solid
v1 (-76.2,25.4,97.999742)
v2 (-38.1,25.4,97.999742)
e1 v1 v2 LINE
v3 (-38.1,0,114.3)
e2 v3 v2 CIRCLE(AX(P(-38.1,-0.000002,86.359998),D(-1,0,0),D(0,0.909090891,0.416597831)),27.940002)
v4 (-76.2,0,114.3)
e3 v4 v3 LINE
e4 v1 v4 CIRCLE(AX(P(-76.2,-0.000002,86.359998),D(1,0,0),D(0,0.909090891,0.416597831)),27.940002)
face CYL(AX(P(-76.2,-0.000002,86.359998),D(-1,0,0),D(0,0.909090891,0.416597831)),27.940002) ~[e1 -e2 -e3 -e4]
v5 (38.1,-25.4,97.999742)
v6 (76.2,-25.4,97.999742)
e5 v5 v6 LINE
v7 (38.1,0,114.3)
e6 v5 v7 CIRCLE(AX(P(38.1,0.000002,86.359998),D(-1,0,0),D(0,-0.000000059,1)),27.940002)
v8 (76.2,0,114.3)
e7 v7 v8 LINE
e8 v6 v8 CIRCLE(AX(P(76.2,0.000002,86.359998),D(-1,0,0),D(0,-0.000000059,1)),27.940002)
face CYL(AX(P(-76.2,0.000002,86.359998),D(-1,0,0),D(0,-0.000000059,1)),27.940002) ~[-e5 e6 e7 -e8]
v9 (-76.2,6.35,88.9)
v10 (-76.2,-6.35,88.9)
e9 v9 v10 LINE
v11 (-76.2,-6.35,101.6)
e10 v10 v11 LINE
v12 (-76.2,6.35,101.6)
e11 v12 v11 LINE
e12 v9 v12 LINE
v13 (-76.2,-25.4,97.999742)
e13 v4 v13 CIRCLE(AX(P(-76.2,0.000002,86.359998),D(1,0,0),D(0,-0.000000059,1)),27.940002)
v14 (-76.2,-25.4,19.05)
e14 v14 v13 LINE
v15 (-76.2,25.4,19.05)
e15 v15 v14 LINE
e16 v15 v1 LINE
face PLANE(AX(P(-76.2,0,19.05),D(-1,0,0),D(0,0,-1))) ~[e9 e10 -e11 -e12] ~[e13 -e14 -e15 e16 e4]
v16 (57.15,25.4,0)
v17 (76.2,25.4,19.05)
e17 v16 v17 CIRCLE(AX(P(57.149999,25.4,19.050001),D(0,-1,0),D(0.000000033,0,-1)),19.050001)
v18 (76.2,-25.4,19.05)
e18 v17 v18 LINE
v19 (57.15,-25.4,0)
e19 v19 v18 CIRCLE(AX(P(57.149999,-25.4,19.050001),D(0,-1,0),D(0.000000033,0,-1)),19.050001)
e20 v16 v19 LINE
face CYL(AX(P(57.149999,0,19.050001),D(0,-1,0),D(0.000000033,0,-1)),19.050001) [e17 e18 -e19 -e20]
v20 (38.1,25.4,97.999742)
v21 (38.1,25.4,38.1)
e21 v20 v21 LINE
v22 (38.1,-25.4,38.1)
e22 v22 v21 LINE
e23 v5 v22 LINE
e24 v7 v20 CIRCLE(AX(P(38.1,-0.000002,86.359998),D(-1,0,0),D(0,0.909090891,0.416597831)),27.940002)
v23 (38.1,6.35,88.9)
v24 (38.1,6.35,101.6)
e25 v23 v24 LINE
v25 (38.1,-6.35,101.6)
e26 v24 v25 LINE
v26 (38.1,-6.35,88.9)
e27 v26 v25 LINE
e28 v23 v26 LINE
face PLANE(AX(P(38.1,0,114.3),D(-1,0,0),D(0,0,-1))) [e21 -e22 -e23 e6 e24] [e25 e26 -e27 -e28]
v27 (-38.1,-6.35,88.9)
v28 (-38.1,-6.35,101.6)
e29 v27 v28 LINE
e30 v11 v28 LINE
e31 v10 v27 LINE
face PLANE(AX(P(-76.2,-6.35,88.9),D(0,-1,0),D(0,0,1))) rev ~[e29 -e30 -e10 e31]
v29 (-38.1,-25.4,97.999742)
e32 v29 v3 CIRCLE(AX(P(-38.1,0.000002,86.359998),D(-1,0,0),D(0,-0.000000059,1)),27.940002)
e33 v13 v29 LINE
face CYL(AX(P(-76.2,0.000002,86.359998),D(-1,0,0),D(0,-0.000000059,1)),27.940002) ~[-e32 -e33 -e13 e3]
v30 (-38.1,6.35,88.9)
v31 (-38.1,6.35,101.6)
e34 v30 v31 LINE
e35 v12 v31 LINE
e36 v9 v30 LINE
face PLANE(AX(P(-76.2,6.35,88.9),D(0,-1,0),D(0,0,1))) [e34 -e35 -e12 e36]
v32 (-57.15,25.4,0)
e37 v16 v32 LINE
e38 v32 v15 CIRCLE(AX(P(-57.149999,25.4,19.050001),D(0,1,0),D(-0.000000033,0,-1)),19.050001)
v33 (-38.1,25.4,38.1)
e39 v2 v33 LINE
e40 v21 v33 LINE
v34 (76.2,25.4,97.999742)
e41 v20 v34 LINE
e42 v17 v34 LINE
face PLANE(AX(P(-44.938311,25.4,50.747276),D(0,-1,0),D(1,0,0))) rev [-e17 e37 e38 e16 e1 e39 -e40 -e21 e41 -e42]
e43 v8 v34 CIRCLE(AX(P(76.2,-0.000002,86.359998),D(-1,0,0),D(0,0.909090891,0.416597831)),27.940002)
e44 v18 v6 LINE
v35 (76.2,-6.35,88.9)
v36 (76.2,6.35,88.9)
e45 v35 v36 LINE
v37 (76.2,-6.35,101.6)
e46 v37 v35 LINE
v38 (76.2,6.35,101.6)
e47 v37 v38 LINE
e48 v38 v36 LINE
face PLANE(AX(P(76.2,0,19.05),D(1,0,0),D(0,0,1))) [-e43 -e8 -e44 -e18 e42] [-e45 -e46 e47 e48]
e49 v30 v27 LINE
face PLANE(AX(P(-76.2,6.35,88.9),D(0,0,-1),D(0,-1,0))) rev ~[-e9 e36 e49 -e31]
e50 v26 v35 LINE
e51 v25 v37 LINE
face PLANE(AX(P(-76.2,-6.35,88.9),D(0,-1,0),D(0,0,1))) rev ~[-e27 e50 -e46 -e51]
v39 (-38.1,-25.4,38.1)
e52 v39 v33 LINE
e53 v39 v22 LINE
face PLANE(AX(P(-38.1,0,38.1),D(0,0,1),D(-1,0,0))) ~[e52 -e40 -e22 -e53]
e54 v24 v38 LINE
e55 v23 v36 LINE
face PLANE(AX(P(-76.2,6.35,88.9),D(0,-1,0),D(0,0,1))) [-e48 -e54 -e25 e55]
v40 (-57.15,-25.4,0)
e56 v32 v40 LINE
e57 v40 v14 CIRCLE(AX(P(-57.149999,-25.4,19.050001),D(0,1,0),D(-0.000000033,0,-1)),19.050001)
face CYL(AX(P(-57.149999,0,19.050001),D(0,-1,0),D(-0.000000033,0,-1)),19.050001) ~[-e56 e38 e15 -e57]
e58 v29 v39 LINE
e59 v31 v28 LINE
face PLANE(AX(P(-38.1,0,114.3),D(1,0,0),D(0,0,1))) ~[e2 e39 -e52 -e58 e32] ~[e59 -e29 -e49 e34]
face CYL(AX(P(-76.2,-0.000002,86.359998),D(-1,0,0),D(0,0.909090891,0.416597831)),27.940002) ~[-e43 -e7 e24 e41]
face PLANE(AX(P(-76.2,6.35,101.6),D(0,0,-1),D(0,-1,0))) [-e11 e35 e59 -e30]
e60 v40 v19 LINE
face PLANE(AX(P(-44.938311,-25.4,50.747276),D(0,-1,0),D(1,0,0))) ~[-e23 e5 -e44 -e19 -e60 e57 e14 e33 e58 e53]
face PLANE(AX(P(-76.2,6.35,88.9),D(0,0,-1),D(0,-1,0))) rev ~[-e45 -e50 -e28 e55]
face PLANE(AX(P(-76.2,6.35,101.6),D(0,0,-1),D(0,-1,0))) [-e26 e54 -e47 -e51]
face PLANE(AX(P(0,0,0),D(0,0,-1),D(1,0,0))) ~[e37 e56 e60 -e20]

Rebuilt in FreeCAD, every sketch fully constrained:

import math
import FreeCAD as App
import Part
import Sketcher
Q = App.Units.Quantity

doc = App.newDocument("Part")
params = doc.addObject("Spreadsheet::Sheet", "Params")
for row, (alias, value) in enumerate([
    ("sketch1_height", "3 in"),
    ("sketch1_radius", "0.75 in"),
    ("sketch1_width", "1.5 in"),
    ("pad1_length", "2 in"),
    ("sketch2_radius", "1.1000001 in"),
    ("sketch2_width", "1 in"),
    ("sketch2_width2", "0.5 in"),
], start=1):
    params.set(f"A{row}", alias)
    params.set(f"B{row}", "=" + value)
    params.setAlias(f"B{row}", alias)

body = doc.addObject("PartDesign::Body", "Body")

# Sketch on XZ plane
sketch1 = body.newObject("Sketcher::SketchObject", "Sketch")
sketch1.AttachmentSupport = (doc.getObject("XZ_Plane"), [""])
sketch1.MapMode = "FlatFace"
sketch1.addGeometry(Part.LineSegment(App.Vector(0, 38, 0), App.Vector(0, 0, 0)), False)
sketch1.addGeometry(Part.LineSegment(App.Vector(0, 0, 0), App.Vector(57, 0, 0)), False)
sketch1.addGeometry(Part.ArcOfCircle(Part.Circle(App.Vector(57, 19, 0), App.Vector(0, 0, 1), 19), math.radians(-90), math.radians(0)), False)
sketch1.addGeometry(Part.LineSegment(App.Vector(76, 19, 0), App.Vector(76, 114, 0)), False)
sketch1.addGeometry(Part.LineSegment(App.Vector(76, 114, 0), App.Vector(38, 114, 0)), False)
sketch1.addGeometry(Part.LineSegment(App.Vector(38, 114, 0), App.Vector(38, 38, 0)), False)
sketch1.addGeometry(Part.LineSegment(App.Vector(38, 38, 0), App.Vector(0, 38, 0)), False)
sketch1.addConstraint(Sketcher.Constraint("Coincident", 0, 2, 1, 1))
sketch1.addConstraint(Sketcher.Constraint("Tangent", 1, 2, 2, 1))
sketch1.addConstraint(Sketcher.Constraint("Tangent", 2, 2, 3, 1))
sketch1.addConstraint(Sketcher.Constraint("Coincident", 3, 2, 4, 1))
sketch1.addConstraint(Sketcher.Constraint("Coincident", 4, 2, 5, 1))
sketch1.addConstraint(Sketcher.Constraint("Coincident", 5, 2, 6, 1))
sketch1.addConstraint(Sketcher.Constraint("Coincident", 6, 2, 0, 1))
sketch1.addConstraint(Sketcher.Constraint("Vertical", 0))
sketch1.addConstraint(Sketcher.Constraint("Horizontal", 1))
sketch1.addConstraint(Sketcher.Constraint("Vertical", 3))
sketch1.addConstraint(Sketcher.Constraint("Horizontal", 4))
sketch1.addConstraint(Sketcher.Constraint("Vertical", 5))
sketch1.addConstraint(Sketcher.Constraint("Horizontal", 6))
sketch1.addConstraint(Sketcher.Constraint("Coincident", 0, 2, -1, 1))
sketch1.addConstraint(Sketcher.Constraint("Equal", 4, 6))
sketch1.addConstraint(Sketcher.Constraint("Equal", 6, 0))
sketch1.addConstraint(Sketcher.Constraint("DistanceY", 5, 2, 5, 1, Q("3 in")))
sketch1.addConstraint(Sketcher.Constraint("Radius", 2, Q("0.75 in")))
sketch1.addConstraint(Sketcher.Constraint("DistanceX", 4, 2, 4, 1, Q("1.5 in")))
sketch1.setExpression("Constraints[16]", "Params.sketch1_height")
sketch1.setExpression("Constraints[17]", "Params.sketch1_radius")
sketch1.setExpression("Constraints[18]", "Params.sketch1_width")
pad1 = body.newObject("PartDesign::Pad", "Pad")
pad1.Profile = sketch1
pad1.setExpression("Length", "Params.pad1_length")
pad1.Midplane = True
body2 = doc.addObject("PartDesign::Body", "Body001")
doc.recompute()

body2.BaseFeature = body
doc.recompute()

mirroring = doc.addObject("Part::Mirroring", "Mirroring")
mirroring.Source = body
mirroring.Base = App.Vector(0, 0, 0)
mirroring.Normal = App.Vector(1, 0, 0)
body3 = doc.addObject("PartDesign::Body", "Body002")
body3.BaseFeature = mirroring
boolean = body2.newObject("PartDesign::Boolean", "Boolean")
boolean.Type = "Fuse"
boolean.addObjects([body3])
doc.recompute()

# Sketch on YZ plane
sketch2 = body2.newObject("Sketcher::SketchObject", "Sketch001")
sketch2.AttachmentSupport = (doc.getObject("YZ_Plane001"), [""])
sketch2.MapMode = "FlatFace"
sketch2.AttachmentOffset = App.Placement(App.Vector(0, 0, -3 * 25.4), App.Rotation())
sketch2.addGeometry(Part.ArcOfCircle(Part.Circle(App.Vector(0, 86, 0), App.Vector(0, 0, 1), 28), math.radians(25), math.radians(90)), False)
sketch2.addGeometry(Part.LineSegment(App.Vector(0, 114, 0), App.Vector(25, 114, 0)), False)
sketch2.addGeometry(Part.LineSegment(App.Vector(25, 114, 0), App.Vector(25, 98, 0)), False)
sketch2.addGeometry(Part.ArcOfCircle(Part.Circle(App.Vector(0, 86, 0), App.Vector(0, 0, 1), 28), math.radians(90), math.radians(155)), False)
sketch2.addGeometry(Part.LineSegment(App.Vector(-25, 98, 0), App.Vector(-25, 114, 0)), False)
sketch2.addGeometry(Part.LineSegment(App.Vector(-25, 114, 0), App.Vector(0, 114, 0)), False)
sketch2.addGeometry(Part.LineSegment(App.Vector(6, 102, 0), App.Vector(6, 89, 0)), False)
sketch2.addGeometry(Part.LineSegment(App.Vector(6, 89, 0), App.Vector(-6, 89, 0)), False)
sketch2.addGeometry(Part.LineSegment(App.Vector(-6, 89, 0), App.Vector(-6, 102, 0)), False)
sketch2.addGeometry(Part.LineSegment(App.Vector(-6, 102, 0), App.Vector(6, 102, 0)), False)
sketch2.addConstraint(Sketcher.Constraint("Tangent", 0, 2, 1, 1))
sketch2.addConstraint(Sketcher.Constraint("Coincident", 1, 2, 2, 1))
sketch2.addConstraint(Sketcher.Constraint("Coincident", 2, 2, 0, 1))
sketch2.addConstraint(Sketcher.Constraint("Coincident", 3, 2, 4, 1))
sketch2.addConstraint(Sketcher.Constraint("Coincident", 4, 2, 5, 1))
sketch2.addConstraint(Sketcher.Constraint("Tangent", 5, 2, 3, 1))
sketch2.addConstraint(Sketcher.Constraint("Coincident", 6, 2, 7, 1))
sketch2.addConstraint(Sketcher.Constraint("Coincident", 7, 2, 8, 1))
sketch2.addConstraint(Sketcher.Constraint("Coincident", 8, 2, 9, 1))
sketch2.addConstraint(Sketcher.Constraint("Coincident", 9, 2, 6, 1))
sketch2.addConstraint(Sketcher.Constraint("Horizontal", 1))
sketch2.addConstraint(Sketcher.Constraint("Vertical", 2))
sketch2.addConstraint(Sketcher.Constraint("Vertical", 4))
sketch2.addConstraint(Sketcher.Constraint("Horizontal", 5))
sketch2.addConstraint(Sketcher.Constraint("Vertical", 6))
sketch2.addConstraint(Sketcher.Constraint("Horizontal", 7))
sketch2.addConstraint(Sketcher.Constraint("Vertical", 8))
sketch2.addConstraint(Sketcher.Constraint("Horizontal", 9))
sketch2.addConstraint(Sketcher.Constraint("Coincident", 3, 3, 0, 3))
sketch2.addConstraint(Sketcher.Constraint("Equal", 0, 3))
sketch2.addConstraint(Sketcher.Constraint("Symmetric", 2, 2, 3, 2, -2))
sketch2.addConstraint(Sketcher.Constraint("Equal", 9, 6))
sketch2.addConstraint(Sketcher.Constraint("Radius", 0, Q("1.1000001 in")))
sketch2.addConstraint(Sketcher.Constraint("DistanceX", 1, 1, 1, 2, Q("1 in")))
sketch2.addConstraint(Sketcher.Constraint("DistanceX", 7, 2, 7, 1, Q("0.5 in")))
sketch2.addConstraint(Sketcher.Constraint("DistanceY", -1, 1, 8, 2, Q("4 in")))
sketch2.addConstraint(Sketcher.Constraint("DistanceY", 6, 2, 0, 2, Q("1 in")))
sketch2.addConstraint(Sketcher.Constraint("DistanceX", -1, 1, 6, 2, Q("0.25 in")))
sketch2.setExpression("Constraints[22]", "Params.sketch2_radius")
sketch2.setExpression("Constraints[23]", "Params.sketch2_width")
sketch2.setExpression("Constraints[24]", "Params.sketch2_width2")
pocket1 = body2.newObject("PartDesign::Pocket", "Pocket")
pocket1.Profile = sketch2
pocket1.Type = "ThroughAll"
pocket1.Reversed = True
mirroring.Visibility = False

doc.recompute()
